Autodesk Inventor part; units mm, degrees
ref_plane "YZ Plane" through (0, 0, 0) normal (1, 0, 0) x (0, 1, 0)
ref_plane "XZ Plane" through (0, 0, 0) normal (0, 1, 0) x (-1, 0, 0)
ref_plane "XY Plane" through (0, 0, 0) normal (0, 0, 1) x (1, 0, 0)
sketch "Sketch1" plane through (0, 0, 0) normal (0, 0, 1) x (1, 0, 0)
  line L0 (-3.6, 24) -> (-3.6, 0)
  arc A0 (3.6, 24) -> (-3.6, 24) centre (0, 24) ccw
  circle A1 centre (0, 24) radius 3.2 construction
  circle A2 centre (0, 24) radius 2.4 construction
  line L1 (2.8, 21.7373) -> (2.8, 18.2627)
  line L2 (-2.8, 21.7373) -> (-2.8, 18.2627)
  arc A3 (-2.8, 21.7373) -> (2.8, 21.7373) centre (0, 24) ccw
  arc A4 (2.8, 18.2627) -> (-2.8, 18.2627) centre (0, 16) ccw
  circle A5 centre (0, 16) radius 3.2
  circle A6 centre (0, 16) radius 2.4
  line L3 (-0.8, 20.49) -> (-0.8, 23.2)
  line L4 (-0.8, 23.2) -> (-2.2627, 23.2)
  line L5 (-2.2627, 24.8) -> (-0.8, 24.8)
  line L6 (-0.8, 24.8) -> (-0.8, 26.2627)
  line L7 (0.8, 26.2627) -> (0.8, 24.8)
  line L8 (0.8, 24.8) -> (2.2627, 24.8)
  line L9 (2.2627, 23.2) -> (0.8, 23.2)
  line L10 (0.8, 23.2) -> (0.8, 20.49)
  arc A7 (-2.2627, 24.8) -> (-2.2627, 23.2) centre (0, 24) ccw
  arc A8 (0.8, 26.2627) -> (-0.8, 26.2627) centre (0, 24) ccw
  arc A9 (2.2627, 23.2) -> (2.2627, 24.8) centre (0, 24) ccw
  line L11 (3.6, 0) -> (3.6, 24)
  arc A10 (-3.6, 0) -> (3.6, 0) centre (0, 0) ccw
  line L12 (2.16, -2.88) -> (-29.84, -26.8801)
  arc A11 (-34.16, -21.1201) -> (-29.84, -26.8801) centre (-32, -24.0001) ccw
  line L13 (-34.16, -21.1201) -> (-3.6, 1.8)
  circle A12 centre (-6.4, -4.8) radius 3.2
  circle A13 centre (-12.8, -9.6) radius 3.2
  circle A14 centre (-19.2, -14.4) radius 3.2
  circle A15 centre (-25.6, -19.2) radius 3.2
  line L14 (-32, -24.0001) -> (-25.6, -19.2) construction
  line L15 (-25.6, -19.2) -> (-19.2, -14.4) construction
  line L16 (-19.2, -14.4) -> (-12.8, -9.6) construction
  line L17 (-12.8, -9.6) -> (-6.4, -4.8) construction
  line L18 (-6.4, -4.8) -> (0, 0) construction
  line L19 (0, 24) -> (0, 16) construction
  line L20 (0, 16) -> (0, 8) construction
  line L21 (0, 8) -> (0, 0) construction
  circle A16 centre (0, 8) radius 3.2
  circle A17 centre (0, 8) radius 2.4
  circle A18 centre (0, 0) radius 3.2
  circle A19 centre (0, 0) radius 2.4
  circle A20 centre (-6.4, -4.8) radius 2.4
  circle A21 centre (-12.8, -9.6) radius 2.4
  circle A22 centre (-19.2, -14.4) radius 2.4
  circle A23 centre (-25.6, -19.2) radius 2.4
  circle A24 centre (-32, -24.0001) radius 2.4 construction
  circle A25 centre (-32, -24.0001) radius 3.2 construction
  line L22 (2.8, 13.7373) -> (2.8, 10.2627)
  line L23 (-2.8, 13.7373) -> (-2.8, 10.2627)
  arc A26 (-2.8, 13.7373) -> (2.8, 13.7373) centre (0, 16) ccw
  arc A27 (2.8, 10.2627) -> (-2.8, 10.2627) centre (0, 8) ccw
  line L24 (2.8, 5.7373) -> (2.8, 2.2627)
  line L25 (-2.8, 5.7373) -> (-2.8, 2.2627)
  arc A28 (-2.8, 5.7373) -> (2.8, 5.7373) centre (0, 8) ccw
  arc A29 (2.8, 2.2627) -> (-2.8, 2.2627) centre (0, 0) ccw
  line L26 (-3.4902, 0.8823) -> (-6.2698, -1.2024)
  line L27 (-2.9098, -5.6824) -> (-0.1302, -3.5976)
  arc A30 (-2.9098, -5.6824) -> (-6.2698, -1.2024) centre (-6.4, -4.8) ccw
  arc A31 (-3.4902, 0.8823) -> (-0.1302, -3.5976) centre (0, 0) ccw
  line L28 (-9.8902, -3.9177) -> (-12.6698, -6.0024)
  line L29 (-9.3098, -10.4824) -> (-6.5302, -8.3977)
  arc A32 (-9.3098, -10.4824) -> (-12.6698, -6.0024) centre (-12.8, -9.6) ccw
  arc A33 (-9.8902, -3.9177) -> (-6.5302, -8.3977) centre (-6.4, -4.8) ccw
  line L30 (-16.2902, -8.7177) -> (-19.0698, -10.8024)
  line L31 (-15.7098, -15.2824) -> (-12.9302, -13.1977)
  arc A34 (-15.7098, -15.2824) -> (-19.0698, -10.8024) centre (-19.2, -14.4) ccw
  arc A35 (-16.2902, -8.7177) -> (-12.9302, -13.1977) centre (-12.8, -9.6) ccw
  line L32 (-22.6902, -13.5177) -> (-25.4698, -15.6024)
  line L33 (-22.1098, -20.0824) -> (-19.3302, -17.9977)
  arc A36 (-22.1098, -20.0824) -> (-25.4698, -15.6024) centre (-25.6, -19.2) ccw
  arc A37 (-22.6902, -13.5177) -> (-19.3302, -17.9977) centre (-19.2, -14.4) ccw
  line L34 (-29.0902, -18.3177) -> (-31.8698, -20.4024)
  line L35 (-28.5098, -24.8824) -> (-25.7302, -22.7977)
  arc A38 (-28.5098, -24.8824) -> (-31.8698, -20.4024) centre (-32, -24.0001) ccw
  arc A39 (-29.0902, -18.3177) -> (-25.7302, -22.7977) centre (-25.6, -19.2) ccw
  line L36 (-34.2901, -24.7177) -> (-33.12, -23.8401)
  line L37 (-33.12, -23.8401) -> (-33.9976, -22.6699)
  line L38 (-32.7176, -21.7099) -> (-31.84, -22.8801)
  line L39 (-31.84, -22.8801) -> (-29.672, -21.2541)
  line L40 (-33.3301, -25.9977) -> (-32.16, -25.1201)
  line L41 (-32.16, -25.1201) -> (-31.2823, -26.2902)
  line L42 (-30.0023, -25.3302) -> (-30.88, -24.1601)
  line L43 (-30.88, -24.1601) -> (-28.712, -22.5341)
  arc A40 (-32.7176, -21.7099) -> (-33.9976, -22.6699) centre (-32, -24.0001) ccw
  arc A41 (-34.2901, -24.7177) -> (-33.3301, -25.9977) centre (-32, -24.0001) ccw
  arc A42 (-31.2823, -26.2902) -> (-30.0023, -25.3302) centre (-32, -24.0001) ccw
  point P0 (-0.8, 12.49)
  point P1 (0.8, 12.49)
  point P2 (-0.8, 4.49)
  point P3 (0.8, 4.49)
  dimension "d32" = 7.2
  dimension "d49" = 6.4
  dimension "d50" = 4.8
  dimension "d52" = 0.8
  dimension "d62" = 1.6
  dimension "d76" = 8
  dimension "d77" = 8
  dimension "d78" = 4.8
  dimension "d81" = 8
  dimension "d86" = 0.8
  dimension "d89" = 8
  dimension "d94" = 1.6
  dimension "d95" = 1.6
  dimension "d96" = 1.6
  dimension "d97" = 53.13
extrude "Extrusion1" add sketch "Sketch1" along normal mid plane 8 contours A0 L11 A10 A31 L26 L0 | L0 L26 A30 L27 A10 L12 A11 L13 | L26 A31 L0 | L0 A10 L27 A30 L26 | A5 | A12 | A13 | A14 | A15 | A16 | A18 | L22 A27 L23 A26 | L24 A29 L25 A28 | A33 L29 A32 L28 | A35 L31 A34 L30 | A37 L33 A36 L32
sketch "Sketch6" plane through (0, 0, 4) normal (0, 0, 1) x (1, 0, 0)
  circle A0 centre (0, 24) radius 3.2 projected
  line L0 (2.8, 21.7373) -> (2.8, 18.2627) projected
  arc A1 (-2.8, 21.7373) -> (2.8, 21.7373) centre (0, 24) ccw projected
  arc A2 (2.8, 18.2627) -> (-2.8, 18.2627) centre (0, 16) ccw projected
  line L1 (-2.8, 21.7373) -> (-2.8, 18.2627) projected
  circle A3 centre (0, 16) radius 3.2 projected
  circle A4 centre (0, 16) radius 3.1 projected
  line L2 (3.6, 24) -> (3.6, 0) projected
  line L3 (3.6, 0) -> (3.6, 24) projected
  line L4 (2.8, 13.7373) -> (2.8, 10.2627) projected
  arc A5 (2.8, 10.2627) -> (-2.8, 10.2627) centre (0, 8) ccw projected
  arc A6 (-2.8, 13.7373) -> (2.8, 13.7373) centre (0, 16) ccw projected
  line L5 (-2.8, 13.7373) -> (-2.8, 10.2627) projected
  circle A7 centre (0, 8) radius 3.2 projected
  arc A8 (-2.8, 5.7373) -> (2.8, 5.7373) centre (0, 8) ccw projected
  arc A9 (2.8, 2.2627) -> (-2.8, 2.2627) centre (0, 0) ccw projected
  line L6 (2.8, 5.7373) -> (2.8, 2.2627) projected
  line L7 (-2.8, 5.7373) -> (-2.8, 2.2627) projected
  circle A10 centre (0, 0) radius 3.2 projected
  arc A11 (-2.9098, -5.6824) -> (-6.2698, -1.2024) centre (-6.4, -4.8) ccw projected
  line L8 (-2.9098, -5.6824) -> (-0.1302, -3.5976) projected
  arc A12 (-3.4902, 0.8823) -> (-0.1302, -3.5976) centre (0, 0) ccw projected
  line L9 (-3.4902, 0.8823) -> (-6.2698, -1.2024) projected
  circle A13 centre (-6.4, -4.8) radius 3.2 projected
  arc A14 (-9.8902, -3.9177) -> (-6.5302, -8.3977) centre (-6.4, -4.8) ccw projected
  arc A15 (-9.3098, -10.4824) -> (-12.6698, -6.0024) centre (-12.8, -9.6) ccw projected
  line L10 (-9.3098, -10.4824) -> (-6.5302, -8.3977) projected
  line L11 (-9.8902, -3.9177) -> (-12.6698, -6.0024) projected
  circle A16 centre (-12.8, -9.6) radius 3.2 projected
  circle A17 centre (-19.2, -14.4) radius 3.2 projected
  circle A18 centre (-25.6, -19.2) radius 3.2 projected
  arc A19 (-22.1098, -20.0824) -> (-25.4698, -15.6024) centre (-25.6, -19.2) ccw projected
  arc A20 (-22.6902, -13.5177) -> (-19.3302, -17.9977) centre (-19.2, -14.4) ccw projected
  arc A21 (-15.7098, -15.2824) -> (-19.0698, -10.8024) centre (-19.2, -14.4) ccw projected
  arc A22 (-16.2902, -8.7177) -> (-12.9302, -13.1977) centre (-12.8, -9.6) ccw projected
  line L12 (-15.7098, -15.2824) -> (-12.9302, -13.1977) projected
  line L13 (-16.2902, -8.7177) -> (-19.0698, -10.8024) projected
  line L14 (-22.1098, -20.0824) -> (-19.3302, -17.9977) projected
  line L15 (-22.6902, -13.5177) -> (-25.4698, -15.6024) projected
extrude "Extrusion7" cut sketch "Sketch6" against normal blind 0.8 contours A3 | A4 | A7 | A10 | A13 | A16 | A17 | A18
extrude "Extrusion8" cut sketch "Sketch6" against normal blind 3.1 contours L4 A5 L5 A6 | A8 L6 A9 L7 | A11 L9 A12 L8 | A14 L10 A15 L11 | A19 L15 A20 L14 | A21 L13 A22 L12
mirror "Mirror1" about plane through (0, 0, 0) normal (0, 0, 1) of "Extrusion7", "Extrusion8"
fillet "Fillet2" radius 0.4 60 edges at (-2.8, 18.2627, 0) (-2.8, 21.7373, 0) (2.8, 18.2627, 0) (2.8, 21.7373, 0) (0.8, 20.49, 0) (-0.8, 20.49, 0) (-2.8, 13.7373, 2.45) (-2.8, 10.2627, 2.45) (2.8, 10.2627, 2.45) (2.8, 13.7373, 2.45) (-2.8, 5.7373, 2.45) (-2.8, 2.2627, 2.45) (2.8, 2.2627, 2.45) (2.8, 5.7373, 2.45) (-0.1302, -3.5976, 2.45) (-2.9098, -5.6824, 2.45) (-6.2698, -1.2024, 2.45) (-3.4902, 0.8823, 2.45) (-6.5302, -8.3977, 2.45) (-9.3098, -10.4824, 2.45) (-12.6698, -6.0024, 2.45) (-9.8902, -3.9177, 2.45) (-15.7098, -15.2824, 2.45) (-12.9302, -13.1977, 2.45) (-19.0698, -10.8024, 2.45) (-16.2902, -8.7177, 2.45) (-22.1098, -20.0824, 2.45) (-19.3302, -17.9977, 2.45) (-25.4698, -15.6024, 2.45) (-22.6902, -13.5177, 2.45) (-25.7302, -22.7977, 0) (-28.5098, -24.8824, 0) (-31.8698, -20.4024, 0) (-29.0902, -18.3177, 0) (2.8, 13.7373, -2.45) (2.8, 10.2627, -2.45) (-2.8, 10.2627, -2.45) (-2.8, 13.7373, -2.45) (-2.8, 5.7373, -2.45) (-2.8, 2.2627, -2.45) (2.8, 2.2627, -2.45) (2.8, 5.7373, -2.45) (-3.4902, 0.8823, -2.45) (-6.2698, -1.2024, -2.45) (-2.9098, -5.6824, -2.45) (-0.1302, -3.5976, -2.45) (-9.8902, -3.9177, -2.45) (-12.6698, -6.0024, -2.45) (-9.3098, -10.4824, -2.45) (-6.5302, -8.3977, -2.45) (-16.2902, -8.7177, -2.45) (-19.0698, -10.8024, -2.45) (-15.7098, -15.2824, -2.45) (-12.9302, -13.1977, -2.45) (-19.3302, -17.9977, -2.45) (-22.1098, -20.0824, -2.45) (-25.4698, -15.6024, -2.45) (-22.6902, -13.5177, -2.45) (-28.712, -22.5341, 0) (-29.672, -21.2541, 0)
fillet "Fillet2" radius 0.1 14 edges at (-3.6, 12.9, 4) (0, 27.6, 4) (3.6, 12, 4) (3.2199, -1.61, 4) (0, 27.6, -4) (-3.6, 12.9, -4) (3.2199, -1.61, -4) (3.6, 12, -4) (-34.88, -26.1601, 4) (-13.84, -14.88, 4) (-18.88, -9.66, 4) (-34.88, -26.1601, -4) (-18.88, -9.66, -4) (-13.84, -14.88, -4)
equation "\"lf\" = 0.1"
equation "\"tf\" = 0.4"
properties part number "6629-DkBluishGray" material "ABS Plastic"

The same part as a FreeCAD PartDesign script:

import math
import FreeCAD as App
import Part
import Sketcher
Q = App.Units.Quantity


def edges_at(feature, points):
    """Names of the edges that pass closest to the given points."""
    edges = feature.Shape.Edges
    near = lambda p: min(range(len(edges)), key=lambda i: edges[i].distToShape(Part.Vertex(*p))[0])
    return sorted({f"Edge{near(p) + 1}" for p in points})

doc = App.newDocument("Part")
body = doc.addObject("PartDesign::Body", "Body")

sketch1 = doc.addObject("Sketcher::SketchObject", "Sketch")
body.addObject(sketch1)
sketch1.AttachmentSupport = (doc.XY_Plane, [""])
sketch1.MapMode = "FlatFace"
sketch1.addGeometry([
    Part.ArcOfCircle(Part.Circle(App.Vector(0, 24, 0), App.Vector(0, 0, 1), 3.6), math.radians(0), math.radians(180)),
    Part.LineSegment(App.Vector(-3.6, 24, 0), App.Vector(-3.6, 1.8, 0)),
    Part.LineSegment(App.Vector(-3.6, 1.8, 0), App.Vector(-34.16, -21.1201, 0)),
    Part.ArcOfCircle(Part.Circle(App.Vector(-32, -24.0001, 0), App.Vector(0, 0, 1), 3.6), math.radians(126.869898), math.radians(306.869898)),
    Part.LineSegment(App.Vector(-29.84, -26.8801, 0), App.Vector(2.16, -2.88, 0)),
    Part.ArcOfCircle(Part.Circle(App.Vector(0, 0, 0), App.Vector(0, 0, 1), 3.6), math.radians(-53.130102), math.radians(0)),
    Part.LineSegment(App.Vector(3.6, 0, 0), App.Vector(3.6, 24, 0)),
    Part.ArcOfCircle(Part.Circle(App.Vector(0, 24, 0), App.Vector(0, 0, 1), 3.599974), math.radians(-77.160462), math.radians(-38.941925)),
    Part.LineSegment(App.Vector(2.8, 21.7373, 0), App.Vector(2.8, 18.2627, 0)),
    Part.ArcOfCircle(Part.Circle(App.Vector(0, 16, 0), App.Vector(0, 0, 1), 3.599974), math.radians(38.941925), math.radians(141.058075)),
    Part.LineSegment(App.Vector(-2.8, 18.2627, 0), App.Vector(-2.8, 21.7373, 0)),
    Part.ArcOfCircle(Part.Circle(App.Vector(0, 24, 0), App.Vector(0, 0, 1), 3.599974), math.radians(-141.058075), math.radians(-102.839538)),
    Part.LineSegment(App.Vector(-0.8, 20.49, 0), App.Vector(-0.8, 23.2, 0)),
    Part.LineSegment(App.Vector(-0.8, 23.2, 0), App.Vector(-2.2627, 23.2, 0)),
    Part.ArcOfCircle(Part.Circle(App.Vector(0, 24, 0), App.Vector(0, 0, 1), 2.399961), math.radians(160.528448), math.radians(199.471552)),
    Part.LineSegment(App.Vector(-2.2627, 24.8, 0), App.Vector(-0.8, 24.8, 0)),
    Part.LineSegment(App.Vector(-0.8, 24.8, 0), App.Vector(-0.8, 26.2627, 0)),
    Part.ArcOfCircle(Part.Circle(App.Vector(0, 24, 0), App.Vector(0, 0, 1), 2.399961), math.radians(70.528448), math.radians(109.471552)),
    Part.LineSegment(App.Vector(0.8, 26.2627, 0), App.Vector(0.8, 24.8, 0)),
    Part.LineSegment(App.Vector(0.8, 24.8, 0), App.Vector(2.2627, 24.8, 0)),
    Part.ArcOfCircle(Part.Circle(App.Vector(0, 24, 0), App.Vector(0, 0, 1), 2.399961), math.radians(-19.471552), math.radians(19.471552)),
    Part.LineSegment(App.Vector(2.2627, 23.2, 0), App.Vector(0.8, 23.2, 0)),
    Part.LineSegment(App.Vector(0.8, 23.2, 0), App.Vector(0.8, 20.49, 0)),
    Part.LineSegment(App.Vector(-31.8698, -20.4024, 0), App.Vector(-29.0902, -18.3177, 0)),
    Part.ArcOfCircle(Part.Circle(App.Vector(-25.6, -19.2, 0), App.Vector(0, 0, 1), 3.600017), math.radians(165.813213), math.radians(267.927382)),
    Part.LineSegment(App.Vector(-25.7302, -22.7977, 0), App.Vector(-28.5098, -24.8824, 0)),
    Part.ArcOfCircle(Part.Circle(App.Vector(-32, -24.0001, 0), App.Vector(0, 0, 1), 3.6), math.radians(-14.186787), math.radians(24.03036)),
    Part.LineSegment(App.Vector(-28.712, -22.5341, 0), App.Vector(-30.88, -24.1601, 0)),
    Part.LineSegment(App.Vector(-30.88, -24.1601, 0), App.Vector(-30.0023, -25.3302, 0)),
    Part.ArcOfCircle(Part.Circle(App.Vector(-32, -24.0001, 0), App.Vector(0, 0, 1), 2.4), math.radians(-72.599404), math.radians(-33.656299)),
    Part.LineSegment(App.Vector(-31.2823, -26.2902, 0), App.Vector(-32.16, -25.1201, 0)),
    Part.LineSegment(App.Vector(-32.16, -25.1201, 0), App.Vector(-33.3301, -25.9977, 0)),
    Part.ArcOfCircle(Part.Circle(App.Vector(-32, -24.0001, 0), App.Vector(0, 0, 1), 2.4), math.radians(-162.601682), math.radians(-123.657622)),
    Part.LineSegment(App.Vector(-34.2901, -24.7177, 0), App.Vector(-33.12, -23.8401, 0)),
    Part.LineSegment(App.Vector(-33.12, -23.8401, 0), App.Vector(-33.9976, -22.6699, 0)),
    Part.ArcOfCircle(Part.Circle(App.Vector(-32, -24.0001, 0), App.Vector(0, 0, 1), 2.399897), math.radians(107.397604), math.radians(146.340391)),
    Part.LineSegment(App.Vector(-32.7176, -21.7099, 0), App.Vector(-31.84, -22.8801, 0)),
    Part.LineSegment(App.Vector(-31.84, -22.8801, 0), App.Vector(-29.672, -21.2541, 0)),
    Part.ArcOfCircle(Part.Circle(App.Vector(-32, -24.0001, 0), App.Vector(0, 0, 1), 3.6), math.radians(49.709436), math.radians(87.927382)),
    Part.Circle(App.Vector(0, 0, 0), App.Vector(0, 0, 1), 2.4),
    Part.Circle(App.Vector(0, 8, 0), App.Vector(0, 0, 1), 2.4),
    Part.Circle(App.Vector(0, 16, 0), App.Vector(0, 0, 1), 2.4),
    Part.Circle(App.Vector(-6.4, -4.8, 0), App.Vector(0, 0, 1), 2.4),
    Part.Circle(App.Vector(-25.6, -19.2, 0), App.Vector(0, 0, 1), 2.4),
    Part.Circle(App.Vector(-19.2, -14.4, 0), App.Vector(0, 0, 1), 2.4),
    Part.Circle(App.Vector(-12.8, -9.6, 0), App.Vector(0, 0, 1), 2.4),
], False)
sketch1.addConstraint([
    Sketcher.Constraint("Tangent", 0, 2, 1, 1),
    Sketcher.Constraint("Coincident", 1, 2, 2, 1),
    Sketcher.Constraint("Tangent", 2, 2, 3, 1),
    Sketcher.Constraint("Tangent", 3, 2, 4, 1),
    Sketcher.Constraint("Tangent", 4, 2, 5, 1),
    Sketcher.Constraint("Tangent", 5, 2, 6, 1),
    Sketcher.Constraint("Tangent", 6, 2, 0, 1),
    Sketcher.Constraint("Coincident", 7, 2, 8, 1),
    Sketcher.Constraint("Coincident", 8, 2, 9, 1),
    Sketcher.Constraint("Coincident", 9, 2, 10, 1),
    Sketcher.Constraint("Coincident", 10, 2, 11, 1),
    Sketcher.Constraint("Coincident", 11, 2, 12, 1),
    Sketcher.Constraint("Coincident", 12, 2, 13, 1),
    Sketcher.Constraint("Coincident", 13, 2, 14, 2),
    Sketcher.Constraint("Coincident", 14, 1, 15, 1),
    Sketcher.Constraint("Coincident", 15, 2, 16, 1),
    Sketcher.Constraint("Coincident", 16, 2, 17, 2),
    Sketcher.Constraint("Coincident", 17, 1, 18, 1),
    Sketcher.Constraint("Coincident", 18, 2, 19, 1),
    Sketcher.Constraint("Coincident", 19, 2, 20, 2),
    Sketcher.Constraint("Coincident", 20, 1, 21, 1),
    Sketcher.Constraint("Coincident", 21, 2, 22, 1),
    Sketcher.Constraint("Coincident", 22, 2, 7, 1),
    Sketcher.Constraint("Coincident", 23, 2, 24, 1),
    Sketcher.Constraint("Coincident", 24, 2, 25, 1),
    Sketcher.Constraint("Coincident", 25, 2, 26, 1),
    Sketcher.Constraint("Coincident", 26, 2, 27, 1),
    Sketcher.Constraint("Coincident", 27, 2, 28, 1),
    Sketcher.Constraint("Coincident", 28, 2, 29, 2),
    Sketcher.Constraint("Coincident", 29, 1, 30, 1),
    Sketcher.Constraint("Coincident", 30, 2, 31, 1),
    Sketcher.Constraint("Coincident", 31, 2, 32, 2),
    Sketcher.Constraint("Coincident", 32, 1, 33, 1),
    Sketcher.Constraint("Coincident", 33, 2, 34, 1),
    Sketcher.Constraint("Coincident", 34, 2, 35, 2),
    Sketcher.Constraint("Coincident", 35, 1, 36, 1),
    Sketcher.Constraint("Coincident", 36, 2, 37, 1),
    Sketcher.Constraint("Coincident", 37, 2, 38, 1),
    Sketcher.Constraint("Coincident", 38, 2, 23, 1),
    Sketcher.Constraint("Vertical", 1),
    Sketcher.Constraint("Vertical", 6),
    Sketcher.Constraint("Vertical", 8),
    Sketcher.Constraint("Vertical", 10),
    Sketcher.Constraint("Vertical", 12),
    Sketcher.Constraint("Horizontal", 13),
    Sketcher.Constraint("Horizontal", 15),
    Sketcher.Constraint("Vertical", 16),
    Sketcher.Constraint("Vertical", 18),
    Sketcher.Constraint("Horizontal", 19),
    Sketcher.Constraint("Horizontal", 21),
    Sketcher.Constraint("Vertical", 22),
    Sketcher.Constraint("Coincident", 5, 3, -1, 1),
    Sketcher.Constraint("Coincident", 39, 3, -1, 1),
    Sketcher.Constraint("Coincident", 7, 3, 0, 3),
    Sketcher.Constraint("Coincident", 11, 3, 0, 3),
    Sketcher.Constraint("Coincident", 14, 3, 0, 3),
    Sketcher.Constraint("Coincident", 17, 3, 0, 3),
    Sketcher.Constraint("Coincident", 20, 3, 0, 3),
    Sketcher.Constraint("Coincident", 26, 3, 3, 3),
    Sketcher.Constraint("Coincident", 29, 3, 3, 3),
    Sketcher.Constraint("Coincident", 32, 3, 3, 3),
    Sketcher.Constraint("Coincident", 35, 3, 3, 3),
    Sketcher.Constraint("Coincident", 38, 3, 3, 3),
    Sketcher.Constraint("Coincident", 41, 3, 9, 3),
    Sketcher.Constraint("Coincident", 43, 3, 24, 3),
    Sketcher.Constraint("Equal", 0, 3),
    Sketcher.Constraint("Equal", 3, 5),
    Sketcher.Constraint("Equal", 5, 7),
    Sketcher.Constraint("Equal", 7, 9),
    Sketcher.Constraint("Equal", 9, 11),
    Sketcher.Constraint("Equal", 14, 17),
    Sketcher.Constraint("Equal", 17, 20),
    Sketcher.Constraint("Equal", 11, 24),
    Sketcher.Constraint("Equal", 24, 26),
    Sketcher.Constraint("Equal", 20, 29),
    Sketcher.Constraint("Equal", 29, 32),
    Sketcher.Constraint("Equal", 32, 35),
    Sketcher.Constraint("Equal", 26, 38),
    Sketcher.Constraint("Equal", 35, 39),
    Sketcher.Constraint("Equal", 39, 40),
    Sketcher.Constraint("Equal", 40, 41),
    Sketcher.Constraint("Equal", 41, 42),
    Sketcher.Constraint("Equal", 42, 43),
    Sketcher.Constraint("Equal", 43, 44),
    Sketcher.Constraint("Equal", 44, 45),
    Sketcher.Constraint("Symmetric", 8, 2, 9, 2, -2),
    Sketcher.Constraint("Symmetric", 15, 2, 18, 2, -2),
    Sketcher.Constraint("Symmetric", 12, 2, 21, 2, -2),
    Sketcher.Constraint("PointOnObject", 40, 3, -2),
    Sketcher.Constraint("Parallel", 2, 4),
    Sketcher.Constraint("Parallel", 4, 23),
    Sketcher.Constraint("Parallel", 23, 25),
    Sketcher.Constraint("Parallel", 25, 27),
    Sketcher.Constraint("Perpendicular", 27, 28),
    Sketcher.Constraint("Parallel", 28, 30),
    Sketcher.Constraint("Perpendicular", 30, 31),
    Sketcher.Constraint("Parallel", 31, 33),
    Sketcher.Constraint("Perpendicular", 33, 34),
    Sketcher.Constraint("Parallel", 34, 36),
    Sketcher.Constraint("Perpendicular", 36, 37),
    Sketcher.Constraint("Vertical", 13, 2, 14, 1),
    Sketcher.Constraint("Vertical", 12, 2, 15, 2),
    Sketcher.Constraint("Equal", 21, 16),
    Sketcher.Constraint("Equal", 23, 25),
    Sketcher.Constraint("Equal", 28, 30),
    Sketcher.Constraint("Equal", 30, 31),
    Sketcher.Constraint("Equal", 31, 33),
    Sketcher.Constraint("Equal", 33, 34),
    Sketcher.Constraint("Equal", 34, 36),
    Sketcher.Constraint("Equal", 27, 37),
    Sketcher.Constraint("Diameter", 39, Q("4.8 mm")),
    Sketcher.Constraint("Radius", 0, Q("3.6 mm")),
    Sketcher.Constraint("DistanceY", -1, 1, 40, 3, Q("8 mm")),
    Sketcher.Constraint("DistanceX", 42, 3, -1, 1, Q("6.4 mm")),
    Sketcher.Constraint("DistanceY", 42, 3, -1, 1, Q("4.8 mm")),
    Sketcher.Constraint("DistanceX", 11, 2, -1, 1, Q("0.8 mm")),
    Sketcher.Constraint("DistanceY", 6, 1, 6, 2, Q("24 mm")),
    Sketcher.Constraint("Distance", 4, Q("40 mm")),
    Sketcher.Constraint("DistanceY", 1, 2, 1, 1, Q("22.2 mm")),
    Sketcher.Constraint("DistanceY", -1, 1, 9, 3, Q("16 mm")),
    Sketcher.Constraint("DistanceX", 24, 3, -1, 1, Q("25.6 mm")),
    Sketcher.Constraint("DistanceY", 24, 3, -1, 1, Q("19.2 mm")),
    Sketcher.Constraint("DistanceX", 44, 3, -1, 1, Q("19.2 mm")),
    Sketcher.Constraint("DistanceY", 44, 3, -1, 1, Q("14.4 mm")),
    Sketcher.Constraint("DistanceX", 45, 3, -1, 1, Q("12.8 mm")),
    Sketcher.Constraint("DistanceY", 45, 3, -1, 1, Q("9.6 mm")),
    Sketcher.Constraint("DistanceX", -1, 1, 7, 2, Q("2.8 mm")),
    Sketcher.Constraint("Distance", 27, Q("2.71 mm")),
    Sketcher.Constraint("DistanceX", 27, 2, -1, 1, Q("30.88 mm")),
    Sketcher.Constraint("Distance", 23, Q("3.4745 mm")),
])
pad1 = doc.addObject("PartDesign::Pad", "Pad")
body.addObject(pad1)
pad1.Profile = sketch1
pad1.Length = 8
pad1.Midplane = True

sketch2 = doc.addObject("Sketcher::SketchObject", "Sketch001")
body.addObject(sketch2)
sketch2.AttachmentSupport = (doc.XY_Plane, [""])
sketch2.MapMode = "FlatFace"
sketch2.AttachmentOffset = App.Placement(App.Vector(0, 0, 4), App.Rotation())
sketch2.addGeometry([
    Part.Circle(App.Vector(0, 16, 0), App.Vector(0, 0, 1), 3.2),
    Part.Circle(App.Vector(0, 8, 0), App.Vector(0, 0, 1), 3.2),
    Part.Circle(App.Vector(0, 0, 0), App.Vector(0, 0, 1), 3.2),
    Part.Circle(App.Vector(-6.4, -4.8, 0), App.Vector(0, 0, 1), 3.2),
    Part.Circle(App.Vector(-12.8, -9.6, 0), App.Vector(0, 0, 1), 3.2),
    Part.Circle(App.Vector(-19.2, -14.4, 0), App.Vector(0, 0, 1), 3.2),
    Part.Circle(App.Vector(-25.6, -19.2, 0), App.Vector(0, 0, 1), 3.2),
], False)
sketch2.addConstraint([
    Sketcher.Constraint("Coincident", 2, 3, -1, 1),
    Sketcher.Constraint("Equal", 0, 1),
    Sketcher.Constraint("Equal", 1, 2),
    Sketcher.Constraint("Equal", 2, 3),
    Sketcher.Constraint("Equal", 3, 4),
    Sketcher.Constraint("Equal", 4, 5),
    Sketcher.Constraint("Equal", 5, 6),
    Sketcher.Constraint("PointOnObject", 0, 3, -2),
    Sketcher.Constraint("PointOnObject", 1, 3, -2),
    Sketcher.Constraint("Diameter", 0, Q("6.4 mm")),
    Sketcher.Constraint("DistanceY", -1, 1, 0, 3, Q("16 mm")),
    Sketcher.Constraint("DistanceY", -1, 1, 1, 3, Q("8 mm")),
    Sketcher.Constraint("DistanceX", 3, 3, -1, 1, Q("6.4 mm")),
    Sketcher.Constraint("DistanceY", 3, 3, -1, 1, Q("4.8 mm")),
    Sketcher.Constraint("DistanceX", 4, 3, -1, 1, Q("12.8 mm")),
    Sketcher.Constraint("DistanceY", 4, 3, -1, 1, Q("9.6 mm")),
    Sketcher.Constraint("DistanceX", 5, 3, -1, 1, Q("19.2 mm")),
    Sketcher.Constraint("DistanceY", 5, 3, -1, 1, Q("14.4 mm")),
    Sketcher.Constraint("DistanceX", 6, 3, -1, 1, Q("25.6 mm")),
    Sketcher.Constraint("DistanceY", 6, 3, -1, 1, Q("19.2 mm")),
])
pocket1 = doc.addObject("PartDesign::Pocket", "Pocket")
body.addObject(pocket1)
pocket1.Profile = sketch2
pocket1.Length = 0.8

sketch3 = doc.addObject("Sketcher::SketchObject", "Sketch002")
body.addObject(sketch3)
sketch3.AttachmentSupport = (doc.XY_Plane, [""])
sketch3.MapMode = "FlatFace"
sketch3.AttachmentOffset = App.Placement(App.Vector(0, 0, 4), App.Rotation())
sketch3.addGeometry([
    Part.LineSegment(App.Vector(2.8, 10.2627, 0), App.Vector(2.8, 13.7373, 0)),
    Part.ArcOfCircle(Part.Circle(App.Vector(0, 16, 0), App.Vector(0, 0, 1), 3.599974), math.radians(-141.058075), math.radians(-38.941925)),
    Part.LineSegment(App.Vector(-2.8, 13.7373, 0), App.Vector(-2.8, 10.2627, 0)),
    Part.ArcOfCircle(Part.Circle(App.Vector(0, 8, 0), App.Vector(0, 0, 1), 3.599974), math.radians(38.941925), math.radians(141.058075)),
    Part.ArcOfCircle(Part.Circle(App.Vector(0, 8, 0), App.Vector(0, 0, 1), 3.599974), math.radians(-141.058075), math.radians(-38.941925)),
    Part.LineSegment(App.Vector(-2.8, 5.7373, 0), App.Vector(-2.8, 2.2627, 0)),
    Part.ArcOfCircle(Part.Circle(App.Vector(0, 0, 0), App.Vector(0, 0, 1), 3.599974), math.radians(38.941925), math.radians(141.058075)),
    Part.LineSegment(App.Vector(2.8, 2.2627, 0), App.Vector(2.8, 5.7373, 0)),
    Part.ArcOfCircle(Part.Circle(App.Vector(-6.4, -4.8, 0), App.Vector(0, 0, 1), 3.599993), math.radians(-14.18833), math.radians(87.927325)),
    Part.LineSegment(App.Vector(-2.9098, -5.6824, 0), App.Vector(-0.1302, -3.5976, 0)),
    Part.ArcOfCircle(Part.Circle(App.Vector(0, 0, 0), App.Vector(0, 0, 1), 3.599974), math.radians(165.813213), math.radians(267.927325)),
    Part.LineSegment(App.Vector(-3.4902, 0.8823, 0), App.Vector(-6.2698, -1.2024, 0)),
    Part.ArcOfCircle(Part.Circle(App.Vector(-6.4, -4.8, 0), App.Vector(0, 0, 1), 3.600017), math.radians(165.813213), math.radians(267.927382)),
    Part.LineSegment(App.Vector(-9.8902, -3.9177, 0), App.Vector(-12.6698, -6.0024, 0)),
    Part.ArcOfCircle(Part.Circle(App.Vector(-12.8, -9.6, 0), App.Vector(0, 0, 1), 3.599993), math.radians(-14.18833), math.radians(87.927325)),
    Part.LineSegment(App.Vector(-9.3098, -10.4824, 0), App.Vector(-6.5302, -8.3977, 0)),
    Part.ArcOfCircle(Part.Circle(App.Vector(-25.6, -19.2, 0), App.Vector(0, 0, 1), 3.600017), math.radians(-14.18833), math.radians(87.927325)),
    Part.LineSegment(App.Vector(-22.1098, -20.0824, 0), App.Vector(-19.3302, -17.9977, 0)),
    Part.ArcOfCircle(Part.Circle(App.Vector(-19.2, -14.4, 0), App.Vector(0, 0, 1), 3.600017), math.radians(165.813213), math.radians(267.927382)),
    Part.LineSegment(App.Vector(-22.6902, -13.5177, 0), App.Vector(-25.4698, -15.6024, 0)),
    Part.ArcOfCircle(Part.Circle(App.Vector(-19.2, -14.4, 0), App.Vector(0, 0, 1), 3.599993), math.radians(-14.18833), math.radians(87.927325)),
    Part.LineSegment(App.Vector(-15.7098, -15.2824, 0), App.Vector(-12.9302, -13.1977, 0)),
    Part.ArcOfCircle(Part.Circle(App.Vector(-12.8, -9.6, 0), App.Vector(0, 0, 1), 3.600017), math.radians(165.813213), math.radians(267.927382)),
    Part.LineSegment(App.Vector(-16.2902, -8.7177, 0), App.Vector(-19.0698, -10.8024, 0)),
], False)
sketch3.addConstraint([
    Sketcher.Constraint("Coincident", 0, 2, 1, 2),
    Sketcher.Constraint("Coincident", 1, 1, 2, 1),
    Sketcher.Constraint("Coincident", 2, 2, 3, 2),
    Sketcher.Constraint("Coincident", 3, 1, 0, 1),
    Sketcher.Constraint("Coincident", 4, 1, 5, 1),
    Sketcher.Constraint("Coincident", 5, 2, 6, 2),
    Sketcher.Constraint("Coincident", 6, 1, 7, 1),
    Sketcher.Constraint("Coincident", 7, 2, 4, 2),
    Sketcher.Constraint("Coincident", 8, 1, 9, 1),
    Sketcher.Constraint("Coincident", 9, 2, 10, 2),
    Sketcher.Constraint("Coincident", 10, 1, 11, 1),
    Sketcher.Constraint("Coincident", 11, 2, 8, 2),
    Sketcher.Constraint("Coincident", 12, 1, 13, 1),
    Sketcher.Constraint("Coincident", 13, 2, 14, 2),
    Sketcher.Constraint("Coincident", 14, 1, 15, 1),
    Sketcher.Constraint("Coincident", 15, 2, 12, 2),
    Sketcher.Constraint("Coincident", 16, 1, 17, 1),
    Sketcher.Constraint("Coincident", 17, 2, 18, 2),
    Sketcher.Constraint("Coincident", 18, 1, 19, 1),
    Sketcher.Constraint("Coincident", 19, 2, 16, 2),
    Sketcher.Constraint("Coincident", 20, 1, 21, 1),
    Sketcher.Constraint("Coincident", 21, 2, 22, 2),
    Sketcher.Constraint("Coincident", 22, 1, 23, 1),
    Sketcher.Constraint("Coincident", 23, 2, 20, 2),
    Sketcher.Constraint("Vertical", 0),
    Sketcher.Constraint("Vertical", 2),
    Sketcher.Constraint("Vertical", 5),
    Sketcher.Constraint("Vertical", 7),
    Sketcher.Constraint("Coincident", 6, 3, -1, 1),
    Sketcher.Constraint("Coincident", 10, 3, -1, 1),
    Sketcher.Constraint("Coincident", 4, 3, 3, 3),
    Sketcher.Constraint("Coincident", 12, 3, 8, 3),
    Sketcher.Constraint("Coincident", 20, 3, 18, 3),
    Sketcher.Constraint("Coincident", 22, 3, 14, 3),
    Sketcher.Constraint("Equal", 1, 3),
    Sketcher.Constraint("Equal", 3, 4),
    Sketcher.Constraint("Equal", 4, 6),
    Sketcher.Constraint("Equal", 6, 8),
    Sketcher.Constraint("Equal", 8, 10),
    Sketcher.Constraint("Equal", 10, 12),
    Sketcher.Constraint("Equal", 12, 14),
    Sketcher.Constraint("Equal", 14, 16),
    Sketcher.Constraint("Equal", 16, 18),
    Sketcher.Constraint("Equal", 18, 20),
    Sketcher.Constraint("Equal", 20, 22),
    Sketcher.Constraint("Symmetric", 0, 2, 1, 1, -2),
    Sketcher.Constraint("Symmetric", 4, 1, 7, 2, -2),
    Sketcher.Constraint("Parallel", 9, 11),
    Sketcher.Constraint("Parallel", 11, 13),
    Sketcher.Constraint("Parallel", 13, 15),
    Sketcher.Constraint("Parallel", 15, 17),
    Sketcher.Constraint("Parallel", 17, 19),
    Sketcher.Constraint("Parallel", 19, 21),
    Sketcher.Constraint("Parallel", 21, 23),
    Sketcher.Constraint("Vertical", 2, 2, 4, 1),
    Sketcher.Constraint("Equal", 2, 5),
    Sketcher.Constraint("Equal", 9, 11),
    Sketcher.Constraint("Equal", 11, 13),
    Sketcher.Constraint("Equal", 13, 15),
    Sketcher.Constraint("Equal", 15, 17),
    Sketcher.Constraint("Equal", 17, 19),
    Sketcher.Constraint("Equal", 19, 21),
    Sketcher.Constraint("Equal", 21, 23),
    Sketcher.Constraint("Radius", 1, Q("3.6 mm")),
    Sketcher.Constraint("DistanceY", -1, 1, 1, 3, Q("16 mm")),
    Sketcher.Constraint("DistanceX", 8, 3, -1, 1, Q("6.4 mm")),
    Sketcher.Constraint("DistanceY", 8, 3, -1, 1, Q("4.8 mm")),
    Sketcher.Constraint("DistanceX", 14, 3, -1, 1, Q("12.8 mm")),
    Sketcher.Constraint("DistanceY", 14, 3, -1, 1, Q("9.6 mm")),
    Sketcher.Constraint("DistanceX", 16, 3, -1, 1, Q("25.6 mm")),
    Sketcher.Constraint("DistanceY", 16, 3, -1, 1, Q("19.2 mm")),
    Sketcher.Constraint("DistanceX", 18, 3, -1, 1, Q("19.2 mm")),
    Sketcher.Constraint("DistanceY", 18, 3, -1, 1, Q("14.4 mm")),
    Sketcher.Constraint("DistanceX", -1, 1, 0, 2, Q("2.8 mm")),
    Sketcher.Constraint("Angle", 11, Q("-143.13 deg")),
    Sketcher.Constraint("DistanceX", 10, 1, 9, 2, Q("3.36 mm")),
])
pocket2 = doc.addObject("PartDesign::Pocket", "Pocket001")
body.addObject(pocket2)
pocket2.Profile = sketch3
pocket2.Length = 3.1
doc.recompute()

mirrored = doc.addObject("PartDesign::Mirrored", "Mirrored")
body.addObject(mirrored)
mirrored.Originals = [pocket1, pocket2]
mirrored.MirrorPlane = (doc.XY_Plane, [""])
body.Tip = mirrored
doc.recompute()

fillet = doc.addObject("PartDesign::Fillet", "Fillet")
body.addObject(fillet)
fillet.Base = (mirrored, edges_at(mirrored, [
    (-2.8, 18.263, 0),
    (-2.8, 21.737, 0),
    (2.8, 18.263, 0),
    (2.8, 21.737, 0),
    (0.8, 20.49, 0),
    (-0.8, 20.49, 0),
    (-2.8, 13.737, 2.45),
    (-2.8, 10.263, 2.45),
    (2.8, 10.263, 2.45),
    (2.8, 13.737, 2.45),
    (-2.8, 5.737, 2.45),
    (-2.8, 2.263, 2.45),
    (2.8, 2.263, 2.45),
    (2.8, 5.737, 2.45),
    (-0.13, -3.598, 2.45),
    (-2.91, -5.682, 2.45),
    (-6.27, -1.202, 2.45),
    (-3.49, 0.882, 2.45),
    (-6.53, -8.398, 2.45),
    (-9.31, -10.482, 2.45),
    (-12.67, -6.002, 2.45),
    (-9.89, -3.918, 2.45),
    (-15.71, -15.282, 2.45),
    (-12.93, -13.198, 2.45),
    (-19.07, -10.802, 2.45),
    (-16.29, -8.718, 2.45),
    (-22.11, -20.082, 2.45),
    (-19.33, -17.998, 2.45),
    (-25.47, -15.602, 2.45),
    (-22.69, -13.518, 2.45),
    (-25.73, -22.798, 0),
    (-28.51, -24.882, 0),
    (-31.87, -20.402, 0),
    (-29.09, -18.318, 0),
    (2.8, 13.737, -2.45),
    (2.8, 10.263, -2.45),
    (-2.8, 10.263, -2.45),
    (-2.8, 13.737, -2.45),
    (-2.8, 5.737, -2.45),
    (-2.8, 2.263, -2.45),
    (2.8, 2.263, -2.45),
    (2.8, 5.737, -2.45),
    (-3.49, 0.882, -2.45),
    (-6.27, -1.202, -2.45),
    (-2.91, -5.682, -2.45),
    (-0.13, -3.598, -2.45),
    (-9.89, -3.918, -2.45),
    (-12.67, -6.002, -2.45),
    (-9.31, -10.482, -2.45),
    (-6.53, -8.398, -2.45),
    (-16.29, -8.718, -2.45),
    (-19.07, -10.802, -2.45),
    (-15.71, -15.282, -2.45),
    (-12.93, -13.198, -2.45),
    (-19.33, -17.998, -2.45),
    (-22.11, -20.082, -2.45),
    (-25.47, -15.602, -2.45),
    (-22.69, -13.518, -2.45),
    (-28.712, -22.534, 0),
    (-29.672, -21.254, 0),
]))
fillet.Radius = 0.4
doc.recompute()

fillet2 = doc.addObject("PartDesign::Fillet", "Fillet001")
body.addObject(fillet2)
fillet2.Base = (fillet, edges_at(fillet, [
    (-3.6, 12.9, 4),
    (0, 27.6, 4),
    (3.6, 12, 4),
    (3.22, -1.61, 4),
    (0, 27.6, -4),
    (-3.6, 12.9, -4),
    (3.22, -1.61, -4),
    (3.6, 12, -4),
    (-34.88, -26.16, 4),
    (-13.84, -14.88, 4),
    (-18.88, -9.66, 4),
    (-34.88, -26.16, -4),
    (-18.88, -9.66, -4),
    (-13.84, -14.88, -4),
]))
fillet2.Radius = 0.1

doc.recompute()
